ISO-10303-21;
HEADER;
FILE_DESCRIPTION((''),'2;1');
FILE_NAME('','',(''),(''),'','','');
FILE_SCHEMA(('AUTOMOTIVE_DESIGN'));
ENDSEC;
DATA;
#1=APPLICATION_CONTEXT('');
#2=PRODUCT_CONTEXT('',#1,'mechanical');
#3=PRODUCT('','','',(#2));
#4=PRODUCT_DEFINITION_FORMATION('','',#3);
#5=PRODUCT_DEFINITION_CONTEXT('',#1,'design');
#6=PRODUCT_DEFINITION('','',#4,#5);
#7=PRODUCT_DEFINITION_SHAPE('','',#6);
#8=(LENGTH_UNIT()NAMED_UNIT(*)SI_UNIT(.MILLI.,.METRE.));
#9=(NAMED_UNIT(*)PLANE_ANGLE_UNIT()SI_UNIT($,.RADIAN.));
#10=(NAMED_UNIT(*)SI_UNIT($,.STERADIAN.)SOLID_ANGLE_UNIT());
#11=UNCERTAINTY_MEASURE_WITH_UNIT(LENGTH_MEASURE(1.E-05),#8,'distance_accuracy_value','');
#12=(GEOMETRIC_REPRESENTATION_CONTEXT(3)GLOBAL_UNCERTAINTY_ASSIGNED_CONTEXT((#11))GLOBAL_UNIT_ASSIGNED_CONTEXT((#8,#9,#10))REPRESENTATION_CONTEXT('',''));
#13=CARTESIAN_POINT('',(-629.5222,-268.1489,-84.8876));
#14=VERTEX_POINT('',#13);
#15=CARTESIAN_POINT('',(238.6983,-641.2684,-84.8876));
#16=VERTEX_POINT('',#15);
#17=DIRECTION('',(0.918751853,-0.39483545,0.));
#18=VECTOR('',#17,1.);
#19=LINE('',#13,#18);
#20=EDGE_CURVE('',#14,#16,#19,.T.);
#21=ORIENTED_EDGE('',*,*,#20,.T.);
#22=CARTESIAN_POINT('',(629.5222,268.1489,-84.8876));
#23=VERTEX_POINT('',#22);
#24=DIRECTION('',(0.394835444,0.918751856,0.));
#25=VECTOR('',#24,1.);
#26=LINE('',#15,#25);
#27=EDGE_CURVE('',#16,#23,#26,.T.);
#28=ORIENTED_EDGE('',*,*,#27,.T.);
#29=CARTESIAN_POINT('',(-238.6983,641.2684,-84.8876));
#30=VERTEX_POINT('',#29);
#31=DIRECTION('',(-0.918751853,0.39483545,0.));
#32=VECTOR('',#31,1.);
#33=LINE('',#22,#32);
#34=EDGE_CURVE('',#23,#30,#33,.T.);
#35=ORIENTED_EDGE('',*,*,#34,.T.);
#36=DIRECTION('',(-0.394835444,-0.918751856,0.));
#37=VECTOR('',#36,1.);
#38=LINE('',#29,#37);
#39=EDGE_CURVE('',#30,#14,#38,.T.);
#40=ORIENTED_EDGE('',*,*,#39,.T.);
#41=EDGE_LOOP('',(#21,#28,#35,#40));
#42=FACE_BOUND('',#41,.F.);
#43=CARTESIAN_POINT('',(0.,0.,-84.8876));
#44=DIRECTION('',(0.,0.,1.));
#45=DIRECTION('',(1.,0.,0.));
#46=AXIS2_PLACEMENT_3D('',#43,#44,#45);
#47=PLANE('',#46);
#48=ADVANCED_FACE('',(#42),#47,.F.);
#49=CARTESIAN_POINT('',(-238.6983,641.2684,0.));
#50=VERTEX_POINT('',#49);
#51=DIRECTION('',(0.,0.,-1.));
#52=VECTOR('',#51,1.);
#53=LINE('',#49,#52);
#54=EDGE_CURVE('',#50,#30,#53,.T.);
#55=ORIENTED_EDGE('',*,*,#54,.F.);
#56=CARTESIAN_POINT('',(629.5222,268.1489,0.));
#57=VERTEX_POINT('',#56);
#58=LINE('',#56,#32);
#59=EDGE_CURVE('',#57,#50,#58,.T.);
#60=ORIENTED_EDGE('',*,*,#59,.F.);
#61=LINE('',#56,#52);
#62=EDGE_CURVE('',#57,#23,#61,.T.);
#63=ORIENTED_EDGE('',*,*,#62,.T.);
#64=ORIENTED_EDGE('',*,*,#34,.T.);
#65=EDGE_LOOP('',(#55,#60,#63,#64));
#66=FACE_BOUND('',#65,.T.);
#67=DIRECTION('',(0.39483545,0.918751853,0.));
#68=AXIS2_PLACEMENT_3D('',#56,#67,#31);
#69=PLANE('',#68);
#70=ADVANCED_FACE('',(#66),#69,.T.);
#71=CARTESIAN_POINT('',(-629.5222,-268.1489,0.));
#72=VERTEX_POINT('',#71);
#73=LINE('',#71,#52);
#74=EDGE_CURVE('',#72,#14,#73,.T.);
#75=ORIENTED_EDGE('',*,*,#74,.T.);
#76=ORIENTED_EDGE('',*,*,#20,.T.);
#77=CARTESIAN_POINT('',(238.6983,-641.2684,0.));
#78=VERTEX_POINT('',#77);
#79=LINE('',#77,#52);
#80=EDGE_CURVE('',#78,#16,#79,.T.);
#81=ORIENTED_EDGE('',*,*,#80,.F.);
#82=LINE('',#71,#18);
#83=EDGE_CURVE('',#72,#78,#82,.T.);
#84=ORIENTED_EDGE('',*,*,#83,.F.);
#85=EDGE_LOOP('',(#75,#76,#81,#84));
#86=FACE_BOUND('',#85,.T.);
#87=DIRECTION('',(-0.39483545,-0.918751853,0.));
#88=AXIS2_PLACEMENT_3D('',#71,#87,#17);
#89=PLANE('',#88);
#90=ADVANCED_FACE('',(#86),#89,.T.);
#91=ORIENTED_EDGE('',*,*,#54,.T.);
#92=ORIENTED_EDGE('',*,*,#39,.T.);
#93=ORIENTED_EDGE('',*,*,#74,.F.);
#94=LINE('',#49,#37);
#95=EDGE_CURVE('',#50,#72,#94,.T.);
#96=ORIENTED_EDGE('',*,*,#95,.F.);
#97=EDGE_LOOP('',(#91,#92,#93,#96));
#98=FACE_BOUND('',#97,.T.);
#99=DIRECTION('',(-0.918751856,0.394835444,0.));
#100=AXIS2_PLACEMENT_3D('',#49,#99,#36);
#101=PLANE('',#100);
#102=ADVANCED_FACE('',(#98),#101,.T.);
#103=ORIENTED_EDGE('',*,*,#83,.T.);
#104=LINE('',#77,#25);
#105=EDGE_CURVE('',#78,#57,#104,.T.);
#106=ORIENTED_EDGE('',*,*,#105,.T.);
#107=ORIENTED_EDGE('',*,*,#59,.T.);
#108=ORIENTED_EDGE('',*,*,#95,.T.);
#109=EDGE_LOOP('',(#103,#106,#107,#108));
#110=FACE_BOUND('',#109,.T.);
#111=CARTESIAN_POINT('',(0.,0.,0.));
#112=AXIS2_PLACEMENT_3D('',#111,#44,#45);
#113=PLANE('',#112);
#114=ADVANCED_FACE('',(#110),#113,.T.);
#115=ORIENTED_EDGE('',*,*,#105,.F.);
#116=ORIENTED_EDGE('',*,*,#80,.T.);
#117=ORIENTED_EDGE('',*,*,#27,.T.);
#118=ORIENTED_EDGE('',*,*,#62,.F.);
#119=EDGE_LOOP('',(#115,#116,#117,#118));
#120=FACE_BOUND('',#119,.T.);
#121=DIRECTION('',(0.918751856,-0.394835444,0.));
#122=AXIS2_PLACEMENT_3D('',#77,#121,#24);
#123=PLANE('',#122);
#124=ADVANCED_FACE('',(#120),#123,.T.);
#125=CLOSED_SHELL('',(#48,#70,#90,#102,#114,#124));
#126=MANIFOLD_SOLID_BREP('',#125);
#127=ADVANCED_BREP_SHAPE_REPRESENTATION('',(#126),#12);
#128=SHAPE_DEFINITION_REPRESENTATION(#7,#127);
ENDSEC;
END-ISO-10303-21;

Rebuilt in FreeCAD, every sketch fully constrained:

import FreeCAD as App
import Part
import Sketcher
from FreeCAD import Vector


def add_polygon(sketch, points):
    """Adds a closed chain of lines whose ends are joined by coincident constraints."""
    first, n = sketch.GeometryCount, len(points)
    for a, b in zip(points, points[1:] + points[:1]):
        sketch.addGeometry(Part.LineSegment(App.Vector(*a, 0), App.Vector(*b, 0)), False)
    for i in range(n):
        sketch.addConstraint(Sketcher.Constraint("Coincident", first + i, 2, first + (i + 1) % n, 1))

doc = App.newDocument("Part")
body = doc.addObject("PartDesign::Body", "Body")

sketch1 = body.newObject("Sketcher::SketchObject", "Sketch")
sketch1.AttachmentSupport = (doc.getObject("XY_Plane"), [""])
sketch1.MapMode = "FlatFace"
add_polygon(sketch1, [(630, 268), (-239, 641), (-630, -268), (239, -641)])
sketch1.addConstraint([
    Sketcher.Constraint("Symmetric", 0, 2, 2, 2, -1, 1),
    Sketcher.Constraint("Symmetric", 1, 2, 3, 2, -1, 1),
    Sketcher.Constraint("Perpendicular", 0, 1),
    Sketcher.Constraint("Distance", 0, 945.0),
    Sketcher.Constraint("Distance", 1, 989.84),
    Sketcher.Constraint("DistanceY", 1, 2, -1, 1, 268.149),
])
pad1 = body.newObject("PartDesign::Pad", "Pad")
pad1.Profile = sketch1
pad1.Length = 84.8876
pad1.Reversed = True

doc.recompute()
